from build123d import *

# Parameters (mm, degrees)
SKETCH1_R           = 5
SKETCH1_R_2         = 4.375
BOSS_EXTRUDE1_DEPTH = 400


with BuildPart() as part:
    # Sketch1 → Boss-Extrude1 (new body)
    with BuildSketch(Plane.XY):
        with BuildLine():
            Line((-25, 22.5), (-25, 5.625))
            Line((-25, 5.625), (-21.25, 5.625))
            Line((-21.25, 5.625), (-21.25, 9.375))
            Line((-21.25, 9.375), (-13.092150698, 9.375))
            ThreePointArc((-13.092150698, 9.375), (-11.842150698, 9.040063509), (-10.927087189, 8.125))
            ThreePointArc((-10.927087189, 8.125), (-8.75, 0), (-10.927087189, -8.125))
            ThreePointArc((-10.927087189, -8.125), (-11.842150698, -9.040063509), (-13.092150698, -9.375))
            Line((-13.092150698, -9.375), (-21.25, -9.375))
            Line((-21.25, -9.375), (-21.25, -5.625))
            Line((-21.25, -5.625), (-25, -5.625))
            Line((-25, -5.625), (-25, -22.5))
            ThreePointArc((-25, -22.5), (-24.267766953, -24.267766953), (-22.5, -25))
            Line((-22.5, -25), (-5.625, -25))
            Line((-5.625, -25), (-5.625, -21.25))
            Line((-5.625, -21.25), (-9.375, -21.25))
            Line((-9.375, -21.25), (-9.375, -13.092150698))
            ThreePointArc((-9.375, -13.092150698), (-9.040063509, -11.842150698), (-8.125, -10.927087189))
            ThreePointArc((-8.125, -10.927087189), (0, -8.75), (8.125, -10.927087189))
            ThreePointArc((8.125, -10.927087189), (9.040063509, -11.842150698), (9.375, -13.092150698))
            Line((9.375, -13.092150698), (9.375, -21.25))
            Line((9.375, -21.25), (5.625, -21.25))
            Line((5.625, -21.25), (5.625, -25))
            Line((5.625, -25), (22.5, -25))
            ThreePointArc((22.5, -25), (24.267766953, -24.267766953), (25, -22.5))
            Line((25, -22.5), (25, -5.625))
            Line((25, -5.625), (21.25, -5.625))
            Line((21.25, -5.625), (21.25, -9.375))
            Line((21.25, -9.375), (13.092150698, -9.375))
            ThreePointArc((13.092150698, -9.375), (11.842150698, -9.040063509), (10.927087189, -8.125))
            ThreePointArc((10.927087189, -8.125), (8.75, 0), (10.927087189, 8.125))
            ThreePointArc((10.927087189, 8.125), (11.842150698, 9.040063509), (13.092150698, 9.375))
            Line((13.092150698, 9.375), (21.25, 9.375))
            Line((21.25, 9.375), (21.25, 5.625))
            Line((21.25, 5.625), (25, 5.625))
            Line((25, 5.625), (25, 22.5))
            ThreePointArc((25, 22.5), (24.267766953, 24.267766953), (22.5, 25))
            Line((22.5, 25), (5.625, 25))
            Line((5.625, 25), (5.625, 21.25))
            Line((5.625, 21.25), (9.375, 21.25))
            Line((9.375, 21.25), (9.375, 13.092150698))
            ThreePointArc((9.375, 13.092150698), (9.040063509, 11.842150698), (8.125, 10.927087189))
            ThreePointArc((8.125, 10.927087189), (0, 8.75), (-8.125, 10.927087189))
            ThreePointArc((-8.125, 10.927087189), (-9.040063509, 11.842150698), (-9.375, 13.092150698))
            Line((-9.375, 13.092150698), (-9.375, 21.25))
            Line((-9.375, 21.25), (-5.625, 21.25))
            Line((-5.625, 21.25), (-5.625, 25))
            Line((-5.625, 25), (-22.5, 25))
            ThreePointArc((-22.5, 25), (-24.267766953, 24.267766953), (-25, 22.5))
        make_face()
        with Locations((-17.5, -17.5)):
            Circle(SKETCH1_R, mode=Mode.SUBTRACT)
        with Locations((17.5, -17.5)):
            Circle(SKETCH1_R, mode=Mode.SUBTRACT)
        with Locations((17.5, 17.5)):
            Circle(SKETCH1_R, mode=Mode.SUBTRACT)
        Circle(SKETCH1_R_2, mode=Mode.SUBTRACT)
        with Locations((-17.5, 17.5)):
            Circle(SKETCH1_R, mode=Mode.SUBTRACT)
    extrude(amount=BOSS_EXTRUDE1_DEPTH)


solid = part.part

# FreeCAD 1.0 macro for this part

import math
import FreeCAD as App
import Part
import Sketcher

V = App.Vector

doc = App.newDocument("Part")
body = doc.addObject("PartDesign::Body", "Body")

# Sketch on XY plane
sketch1 = body.newObject("Sketcher::SketchObject", "Sketch")
sketch1.AttachmentSupport = (doc.getObject("XY_Plane"), [""])
sketch1.MapMode = "FlatFace"
sketch1.addGeometry([
    Part.LineSegment(V(-25, 22.5, 0), V(-25, 5.625, 0)),  # 0
    Part.LineSegment(V(-25, 5.625, 0), V(-21.25, 5.625, 0)),  # 1
    Part.LineSegment(V(-21.25, 5.625, 0), V(-21.25, 9.375, 0)),  # 2
    Part.LineSegment(V(-21.25, 9.375, 0), V(-13.092151, 9.375, 0)),  # 3
    Part.ArcOfCircle(Part.Circle(V(-13.092151, 6.875, 0), V(0, 0, 1), 2.5), math.radians(30), math.radians(90)),  # 4
    Part.ArcOfCircle(Part.Circle(V(-25, 0, 0), V(0, 0, 1), 16.25), math.radians(-30), math.radians(30)),  # 5
    Part.ArcOfCircle(Part.Circle(V(-13.092151, -6.875, 0), V(0, 0, 1), 2.5), math.radians(-90), math.radians(-30)),  # 6
    Part.LineSegment(V(-13.092151, -9.375, 0), V(-21.25, -9.375, 0)),  # 7
    Part.LineSegment(V(-21.25, -9.375, 0), V(-21.25, -5.625, 0)),  # 8
    Part.LineSegment(V(-21.25, -5.625, 0), V(-25, -5.625, 0)),  # 9
    Part.LineSegment(V(-25, -5.625, 0), V(-25, -22.5, 0)),  # 10
    Part.ArcOfCircle(Part.Circle(V(-22.5, -22.5, 0), V(0, 0, 1), 2.5), math.radians(180), math.radians(270)),  # 11
    Part.LineSegment(V(-22.5, -25, 0), V(-5.625, -25, 0)),  # 12
    Part.LineSegment(V(-5.625, -25, 0), V(-5.625, -21.25, 0)),  # 13
    Part.LineSegment(V(-5.625, -21.25, 0), V(-9.375, -21.25, 0)),  # 14
    Part.LineSegment(V(-9.375, -21.25, 0), V(-9.375, -13.092151, 0)),  # 15
    Part.ArcOfCircle(Part.Circle(V(-6.875, -13.092151, 0), V(0, 0, 1), 2.5), math.radians(120), math.radians(180)),  # 16
    Part.ArcOfCircle(Part.Circle(V(0, -25, 0), V(0, 0, 1), 16.25), math.radians(60), math.radians(120)),  # 17
    Part.ArcOfCircle(Part.Circle(V(6.875, -13.092151, 0), V(0, 0, 1), 2.5), math.radians(0), math.radians(60)),  # 18
    Part.LineSegment(V(9.375, -13.092151, 0), V(9.375, -21.25, 0)),  # 19
    Part.LineSegment(V(9.375, -21.25, 0), V(5.625, -21.25, 0)),  # 20
    Part.LineSegment(V(5.625, -21.25, 0), V(5.625, -25, 0)),  # 21
    Part.LineSegment(V(5.625, -25, 0), V(22.5, -25, 0)),  # 22
    Part.ArcOfCircle(Part.Circle(V(22.5, -22.5, 0), V(0, 0, 1), 2.5), math.radians(-90), math.radians(0)),  # 23
    Part.LineSegment(V(25, -22.5, 0), V(25, -5.625, 0)),  # 24
    Part.LineSegment(V(25, -5.625, 0), V(21.25, -5.625, 0)),  # 25
    Part.LineSegment(V(21.25, -5.625, 0), V(21.25, -9.375, 0)),  # 26
    Part.LineSegment(V(21.25, -9.375, 0), V(13.092151, -9.375, 0)),  # 27
    Part.ArcOfCircle(Part.Circle(V(13.092151, -6.875, 0), V(0, 0, 1), 2.5), math.radians(-150), math.radians(-90)),  # 28
    Part.ArcOfCircle(Part.Circle(V(25, 0, 0), V(0, 0, 1), 16.25), math.radians(150), math.radians(210)),  # 29
    Part.ArcOfCircle(Part.Circle(V(13.092151, 6.875, 0), V(0, 0, 1), 2.5), math.radians(90), math.radians(150)),  # 30
    Part.LineSegment(V(13.092151, 9.375, 0), V(21.25, 9.375, 0)),  # 31
    Part.LineSegment(V(21.25, 9.375, 0), V(21.25, 5.625, 0)),  # 32
    Part.LineSegment(V(21.25, 5.625, 0), V(25, 5.625, 0)),  # 33
    Part.LineSegment(V(25, 5.625, 0), V(25, 22.5, 0)),  # 34
    Part.ArcOfCircle(Part.Circle(V(22.5, 22.5, 0), V(0, 0, 1), 2.5), math.radians(0), math.radians(90)),  # 35
    Part.LineSegment(V(22.5, 25, 0), V(5.625, 25, 0)),  # 36
    Part.LineSegment(V(5.625, 25, 0), V(5.625, 21.25, 0)),  # 37
    Part.LineSegment(V(5.625, 21.25, 0), V(9.375, 21.25, 0)),  # 38
    Part.LineSegment(V(9.375, 21.25, 0), V(9.375, 13.092151, 0)),  # 39
    Part.ArcOfCircle(Part.Circle(V(6.875, 13.092151, 0), V(0, 0, 1), 2.5), math.radians(-60), math.radians(0)),  # 40
    Part.ArcOfCircle(Part.Circle(V(0, 25, 0), V(0, 0, 1), 16.25), math.radians(-120), math.radians(-60)),  # 41
    Part.ArcOfCircle(Part.Circle(V(-6.875, 13.092151, 0), V(0, 0, 1), 2.5), math.radians(-180), math.radians(-120)),  # 42
    Part.LineSegment(V(-9.375, 13.092151, 0), V(-9.375, 21.25, 0)),  # 43
    Part.LineSegment(V(-9.375, 21.25, 0), V(-5.625, 21.25, 0)),  # 44
    Part.LineSegment(V(-5.625, 21.25, 0), V(-5.625, 25, 0)),  # 45
    Part.LineSegment(V(-5.625, 25, 0), V(-22.5, 25, 0)),  # 46
    Part.ArcOfCircle(Part.Circle(V(-22.5, 22.5, 0), V(0, 0, 1), 2.5), math.radians(90), math.radians(180)),  # 47
    Part.Circle(V(-17.5, -17.5, 0), V(0, 0, 1), 5),  # 48
    Part.Circle(V(17.5, -17.5, 0), V(0, 0, 1), 5),  # 49
    Part.Circle(V(-17.5, 17.5, 0), V(0, 0, 1), 5),  # 50
    Part.Circle(V(0, 0, 0), V(0, 0, 1), 4.375),  # 51
    Part.Circle(V(17.5, 17.5, 0), V(0, 0, 1), 5),  # 52
], False)
sketch1.addConstraint([
    Sketcher.Constraint("Coincident", 0, 2, 1, 1),
    Sketcher.Constraint("Coincident", 1, 2, 2, 1),
    Sketcher.Constraint("Coincident", 2, 2, 3, 1),
    Sketcher.Constraint("Tangent", 3, 2, 4, 2),
    Sketcher.Constraint("Tangent", 4, 1, 5, 2),
    Sketcher.Constraint("Tangent", 5, 1, 6, 2),
    Sketcher.Constraint("Tangent", 6, 1, 7, 1),
    Sketcher.Constraint("Coincident", 7, 2, 8, 1),
    Sketcher.Constraint("Coincident", 8, 2, 9, 1),
    Sketcher.Constraint("Coincident", 9, 2, 10, 1),
    Sketcher.Constraint("Tangent", 10, 2, 11, 1),
    Sketcher.Constraint("Tangent", 11, 2, 12, 1),
    Sketcher.Constraint("Coincident", 12, 2, 13, 1),
    Sketcher.Constraint("Coincident", 13, 2, 14, 1),
    Sketcher.Constraint("Coincident", 14, 2, 15, 1),
    Sketcher.Constraint("Tangent", 15, 2, 16, 2),
    Sketcher.Constraint("Tangent", 16, 1, 17, 2),
    Sketcher.Constraint("Tangent", 17, 1, 18, 2),
    Sketcher.Constraint("Tangent", 18, 1, 19, 1),
    Sketcher.Constraint("Coincident", 19, 2, 20, 1),
    Sketcher.Constraint("Coincident", 20, 2, 21, 1),
    Sketcher.Constraint("Coincident", 21, 2, 22, 1),
    Sketcher.Constraint("Tangent", 22, 2, 23, 1),
    Sketcher.Constraint("Tangent", 23, 2, 24, 1),
    Sketcher.Constraint("Coincident", 24, 2, 25, 1),
    Sketcher.Constraint("Coincident", 25, 2, 26, 1),
    Sketcher.Constraint("Coincident", 26, 2, 27, 1),
    Sketcher.Constraint("Tangent", 27, 2, 28, 2),
    Sketcher.Constraint("Tangent", 28, 1, 29, 2),
    Sketcher.Constraint("Tangent", 29, 1, 30, 2),
    Sketcher.Constraint("Tangent", 30, 1, 31, 1),
    Sketcher.Constraint("Coincident", 31, 2, 32, 1),
    Sketcher.Constraint("Coincident", 32, 2, 33, 1),
    Sketcher.Constraint("Coincident", 33, 2, 34, 1),
    Sketcher.Constraint("Tangent", 34, 2, 35, 1),
    Sketcher.Constraint("Tangent", 35, 2, 36, 1),
    Sketcher.Constraint("Coincident", 36, 2, 37, 1),
    Sketcher.Constraint("Coincident", 37, 2, 38, 1),
    Sketcher.Constraint("Coincident", 38, 2, 39, 1),
    Sketcher.Constraint("Tangent", 39, 2, 40, 2),
    Sketcher.Constraint("Tangent", 40, 1, 41, 2),
    Sketcher.Constraint("Tangent", 41, 1, 42, 2),
    Sketcher.Constraint("Tangent", 42, 1, 43, 1),
    Sketcher.Constraint("Coincident", 43, 2, 44, 1),
    Sketcher.Constraint("Coincident", 44, 2, 45, 1),
    Sketcher.Constraint("Coincident", 45, 2, 46, 1),
    Sketcher.Constraint("Tangent", 46, 2, 47, 1),
    Sketcher.Constraint("Tangent", 47, 2, 0, 1),
    Sketcher.Constraint("Vertical", 0),
    Sketcher.Constraint("Horizontal", 1),
    Sketcher.Constraint("Vertical", 2),
    Sketcher.Constraint("Horizontal", 3),
    Sketcher.Constraint("Horizontal", 7),
    Sketcher.Constraint("Vertical", 8),
    Sketcher.Constraint("Horizontal", 9),
    Sketcher.Constraint("Vertical", 10),
    Sketcher.Constraint("Horizontal", 12),
    Sketcher.Constraint("Vertical", 13),
    Sketcher.Constraint("Horizontal", 14),
    Sketcher.Constraint("Vertical", 15),
    Sketcher.Constraint("Vertical", 19),
    Sketcher.Constraint("Horizontal", 20),
    Sketcher.Constraint("Vertical", 21),
    Sketcher.Constraint("Horizontal", 22),
    Sketcher.Constraint("Vertical", 24),
    Sketcher.Constraint("Horizontal", 25),
    Sketcher.Constraint("Vertical", 26),
    Sketcher.Constraint("Horizontal", 27),
    Sketcher.Constraint("Horizontal", 31),
    Sketcher.Constraint("Vertical", 32),
    Sketcher.Constraint("Horizontal", 33),
    Sketcher.Constraint("Vertical", 34),
    Sketcher.Constraint("Horizontal", 36),
    Sketcher.Constraint("Vertical", 37),
    Sketcher.Constraint("Horizontal", 38),
    Sketcher.Constraint("Vertical", 39),
    Sketcher.Constraint("Vertical", 43),
    Sketcher.Constraint("Horizontal", 44),
    Sketcher.Constraint("Vertical", 45),
    Sketcher.Constraint("Horizontal", 46),
    Sketcher.Constraint("Coincident", 51, 3, -1, 1),
    Sketcher.Constraint("Equal", 4, 6),
    Sketcher.Constraint("Equal", 6, 11),
    Sketcher.Constraint("Equal", 11, 16),
    Sketcher.Constraint("Equal", 5, 17),
    Sketcher.Constraint("Equal", 16, 18),
    Sketcher.Constraint("Equal", 18, 23),
    Sketcher.Constraint("Equal", 23, 28),
    Sketcher.Constraint("Equal", 17, 29),
    Sketcher.Constraint("Equal", 28, 30),
    Sketcher.Constraint("Equal", 30, 35),
    Sketcher.Constraint("Equal", 35, 40),
    Sketcher.Constraint("Equal", 29, 41),
    Sketcher.Constraint("Equal", 40, 42),
    Sketcher.Constraint("Equal", 42, 47),
    Sketcher.Constraint("Equal", 48, 49),
    Sketcher.Constraint("Equal", 49, 50),
    Sketcher.Constraint("Equal", 50, 52),
    Sketcher.Constraint("Symmetric", 4, 3, 28, 3, -1, 1),
    Sketcher.Constraint("Symmetric", 6, 3, 30, 3, -1, 1),
    Sketcher.Constraint("Symmetric", 11, 3, 35, 3, -1, 1),
    Sketcher.Constraint("Symmetric", 16, 3, 40, 3, -1, 1),
    Sketcher.Constraint("Symmetric", 18, 3, 42, 3, -1, 1),
    Sketcher.Constraint("Symmetric", 23, 3, 47, 3, -1, 1),
    Sketcher.Constraint("Symmetric", 49, 3, 50, 3, -1, 1),
    Sketcher.Constraint("Symmetric", 48, 3, 52, 3, -1, 1),
    Sketcher.Constraint("Symmetric", 1, 2, 25, 2, -1, 1),
    Sketcher.Constraint("Symmetric", 8, 2, 32, 2, -1, 1),
    Sketcher.Constraint("Symmetric", 13, 2, 37, 2, -1, 1),
    Sketcher.Constraint("Symmetric", 20, 2, 44, 2, -1, 1),
    Sketcher.Constraint("Symmetric", 16, 3, 18, 3, -2),
    Sketcher.Constraint("Symmetric", 11, 3, 23, 3, -2),
    Sketcher.Constraint("Symmetric", 6, 3, 28, 3, -2),
    Sketcher.Constraint("Symmetric", 48, 3, 49, 3, -2),
    Sketcher.Constraint("Symmetric", 13, 2, 20, 2, -2),
    Sketcher.Constraint("Symmetric", 8, 2, 25, 2, -2),
    Sketcher.Constraint("Horizontal", 17, 3, 11, 2),
    Sketcher.Constraint("Vertical", 5, 3, 0, 2),
    Sketcher.Constraint("Equal", 9, 14),
    Sketcher.Constraint("Equal", 46, 0),
    Sketcher.Constraint("Equal", 44, 2),
    Sketcher.Constraint("Equal", 8, 13),
    Sketcher.Constraint("Equal", 31, 15),
    Sketcher.Constraint("Diameter", 48, 10.0),
    Sketcher.Constraint("Radius", 4, 2.5),
    Sketcher.Constraint("Diameter", 51, 8.75),
    Sketcher.Constraint("Radius", 5, 16.25),
    Sketcher.Constraint("DistanceX", 5, 3, -1, 1, 25.0),
    Sketcher.Constraint("DistanceX", 1, 1, 1, 2, 3.75),
    Sketcher.Constraint("DistanceX", 48, 3, -1, 1, 17.5),
    Sketcher.Constraint("DistanceY", 48, 3, -1, 1, 17.5),
    Sketcher.Constraint("DistanceX", 12, 1, 12, 2, 16.875),
])
pad1 = body.newObject("PartDesign::Pad", "Pad")
pad1.Profile = sketch1
pad1.Length = 400

doc.recompute()
